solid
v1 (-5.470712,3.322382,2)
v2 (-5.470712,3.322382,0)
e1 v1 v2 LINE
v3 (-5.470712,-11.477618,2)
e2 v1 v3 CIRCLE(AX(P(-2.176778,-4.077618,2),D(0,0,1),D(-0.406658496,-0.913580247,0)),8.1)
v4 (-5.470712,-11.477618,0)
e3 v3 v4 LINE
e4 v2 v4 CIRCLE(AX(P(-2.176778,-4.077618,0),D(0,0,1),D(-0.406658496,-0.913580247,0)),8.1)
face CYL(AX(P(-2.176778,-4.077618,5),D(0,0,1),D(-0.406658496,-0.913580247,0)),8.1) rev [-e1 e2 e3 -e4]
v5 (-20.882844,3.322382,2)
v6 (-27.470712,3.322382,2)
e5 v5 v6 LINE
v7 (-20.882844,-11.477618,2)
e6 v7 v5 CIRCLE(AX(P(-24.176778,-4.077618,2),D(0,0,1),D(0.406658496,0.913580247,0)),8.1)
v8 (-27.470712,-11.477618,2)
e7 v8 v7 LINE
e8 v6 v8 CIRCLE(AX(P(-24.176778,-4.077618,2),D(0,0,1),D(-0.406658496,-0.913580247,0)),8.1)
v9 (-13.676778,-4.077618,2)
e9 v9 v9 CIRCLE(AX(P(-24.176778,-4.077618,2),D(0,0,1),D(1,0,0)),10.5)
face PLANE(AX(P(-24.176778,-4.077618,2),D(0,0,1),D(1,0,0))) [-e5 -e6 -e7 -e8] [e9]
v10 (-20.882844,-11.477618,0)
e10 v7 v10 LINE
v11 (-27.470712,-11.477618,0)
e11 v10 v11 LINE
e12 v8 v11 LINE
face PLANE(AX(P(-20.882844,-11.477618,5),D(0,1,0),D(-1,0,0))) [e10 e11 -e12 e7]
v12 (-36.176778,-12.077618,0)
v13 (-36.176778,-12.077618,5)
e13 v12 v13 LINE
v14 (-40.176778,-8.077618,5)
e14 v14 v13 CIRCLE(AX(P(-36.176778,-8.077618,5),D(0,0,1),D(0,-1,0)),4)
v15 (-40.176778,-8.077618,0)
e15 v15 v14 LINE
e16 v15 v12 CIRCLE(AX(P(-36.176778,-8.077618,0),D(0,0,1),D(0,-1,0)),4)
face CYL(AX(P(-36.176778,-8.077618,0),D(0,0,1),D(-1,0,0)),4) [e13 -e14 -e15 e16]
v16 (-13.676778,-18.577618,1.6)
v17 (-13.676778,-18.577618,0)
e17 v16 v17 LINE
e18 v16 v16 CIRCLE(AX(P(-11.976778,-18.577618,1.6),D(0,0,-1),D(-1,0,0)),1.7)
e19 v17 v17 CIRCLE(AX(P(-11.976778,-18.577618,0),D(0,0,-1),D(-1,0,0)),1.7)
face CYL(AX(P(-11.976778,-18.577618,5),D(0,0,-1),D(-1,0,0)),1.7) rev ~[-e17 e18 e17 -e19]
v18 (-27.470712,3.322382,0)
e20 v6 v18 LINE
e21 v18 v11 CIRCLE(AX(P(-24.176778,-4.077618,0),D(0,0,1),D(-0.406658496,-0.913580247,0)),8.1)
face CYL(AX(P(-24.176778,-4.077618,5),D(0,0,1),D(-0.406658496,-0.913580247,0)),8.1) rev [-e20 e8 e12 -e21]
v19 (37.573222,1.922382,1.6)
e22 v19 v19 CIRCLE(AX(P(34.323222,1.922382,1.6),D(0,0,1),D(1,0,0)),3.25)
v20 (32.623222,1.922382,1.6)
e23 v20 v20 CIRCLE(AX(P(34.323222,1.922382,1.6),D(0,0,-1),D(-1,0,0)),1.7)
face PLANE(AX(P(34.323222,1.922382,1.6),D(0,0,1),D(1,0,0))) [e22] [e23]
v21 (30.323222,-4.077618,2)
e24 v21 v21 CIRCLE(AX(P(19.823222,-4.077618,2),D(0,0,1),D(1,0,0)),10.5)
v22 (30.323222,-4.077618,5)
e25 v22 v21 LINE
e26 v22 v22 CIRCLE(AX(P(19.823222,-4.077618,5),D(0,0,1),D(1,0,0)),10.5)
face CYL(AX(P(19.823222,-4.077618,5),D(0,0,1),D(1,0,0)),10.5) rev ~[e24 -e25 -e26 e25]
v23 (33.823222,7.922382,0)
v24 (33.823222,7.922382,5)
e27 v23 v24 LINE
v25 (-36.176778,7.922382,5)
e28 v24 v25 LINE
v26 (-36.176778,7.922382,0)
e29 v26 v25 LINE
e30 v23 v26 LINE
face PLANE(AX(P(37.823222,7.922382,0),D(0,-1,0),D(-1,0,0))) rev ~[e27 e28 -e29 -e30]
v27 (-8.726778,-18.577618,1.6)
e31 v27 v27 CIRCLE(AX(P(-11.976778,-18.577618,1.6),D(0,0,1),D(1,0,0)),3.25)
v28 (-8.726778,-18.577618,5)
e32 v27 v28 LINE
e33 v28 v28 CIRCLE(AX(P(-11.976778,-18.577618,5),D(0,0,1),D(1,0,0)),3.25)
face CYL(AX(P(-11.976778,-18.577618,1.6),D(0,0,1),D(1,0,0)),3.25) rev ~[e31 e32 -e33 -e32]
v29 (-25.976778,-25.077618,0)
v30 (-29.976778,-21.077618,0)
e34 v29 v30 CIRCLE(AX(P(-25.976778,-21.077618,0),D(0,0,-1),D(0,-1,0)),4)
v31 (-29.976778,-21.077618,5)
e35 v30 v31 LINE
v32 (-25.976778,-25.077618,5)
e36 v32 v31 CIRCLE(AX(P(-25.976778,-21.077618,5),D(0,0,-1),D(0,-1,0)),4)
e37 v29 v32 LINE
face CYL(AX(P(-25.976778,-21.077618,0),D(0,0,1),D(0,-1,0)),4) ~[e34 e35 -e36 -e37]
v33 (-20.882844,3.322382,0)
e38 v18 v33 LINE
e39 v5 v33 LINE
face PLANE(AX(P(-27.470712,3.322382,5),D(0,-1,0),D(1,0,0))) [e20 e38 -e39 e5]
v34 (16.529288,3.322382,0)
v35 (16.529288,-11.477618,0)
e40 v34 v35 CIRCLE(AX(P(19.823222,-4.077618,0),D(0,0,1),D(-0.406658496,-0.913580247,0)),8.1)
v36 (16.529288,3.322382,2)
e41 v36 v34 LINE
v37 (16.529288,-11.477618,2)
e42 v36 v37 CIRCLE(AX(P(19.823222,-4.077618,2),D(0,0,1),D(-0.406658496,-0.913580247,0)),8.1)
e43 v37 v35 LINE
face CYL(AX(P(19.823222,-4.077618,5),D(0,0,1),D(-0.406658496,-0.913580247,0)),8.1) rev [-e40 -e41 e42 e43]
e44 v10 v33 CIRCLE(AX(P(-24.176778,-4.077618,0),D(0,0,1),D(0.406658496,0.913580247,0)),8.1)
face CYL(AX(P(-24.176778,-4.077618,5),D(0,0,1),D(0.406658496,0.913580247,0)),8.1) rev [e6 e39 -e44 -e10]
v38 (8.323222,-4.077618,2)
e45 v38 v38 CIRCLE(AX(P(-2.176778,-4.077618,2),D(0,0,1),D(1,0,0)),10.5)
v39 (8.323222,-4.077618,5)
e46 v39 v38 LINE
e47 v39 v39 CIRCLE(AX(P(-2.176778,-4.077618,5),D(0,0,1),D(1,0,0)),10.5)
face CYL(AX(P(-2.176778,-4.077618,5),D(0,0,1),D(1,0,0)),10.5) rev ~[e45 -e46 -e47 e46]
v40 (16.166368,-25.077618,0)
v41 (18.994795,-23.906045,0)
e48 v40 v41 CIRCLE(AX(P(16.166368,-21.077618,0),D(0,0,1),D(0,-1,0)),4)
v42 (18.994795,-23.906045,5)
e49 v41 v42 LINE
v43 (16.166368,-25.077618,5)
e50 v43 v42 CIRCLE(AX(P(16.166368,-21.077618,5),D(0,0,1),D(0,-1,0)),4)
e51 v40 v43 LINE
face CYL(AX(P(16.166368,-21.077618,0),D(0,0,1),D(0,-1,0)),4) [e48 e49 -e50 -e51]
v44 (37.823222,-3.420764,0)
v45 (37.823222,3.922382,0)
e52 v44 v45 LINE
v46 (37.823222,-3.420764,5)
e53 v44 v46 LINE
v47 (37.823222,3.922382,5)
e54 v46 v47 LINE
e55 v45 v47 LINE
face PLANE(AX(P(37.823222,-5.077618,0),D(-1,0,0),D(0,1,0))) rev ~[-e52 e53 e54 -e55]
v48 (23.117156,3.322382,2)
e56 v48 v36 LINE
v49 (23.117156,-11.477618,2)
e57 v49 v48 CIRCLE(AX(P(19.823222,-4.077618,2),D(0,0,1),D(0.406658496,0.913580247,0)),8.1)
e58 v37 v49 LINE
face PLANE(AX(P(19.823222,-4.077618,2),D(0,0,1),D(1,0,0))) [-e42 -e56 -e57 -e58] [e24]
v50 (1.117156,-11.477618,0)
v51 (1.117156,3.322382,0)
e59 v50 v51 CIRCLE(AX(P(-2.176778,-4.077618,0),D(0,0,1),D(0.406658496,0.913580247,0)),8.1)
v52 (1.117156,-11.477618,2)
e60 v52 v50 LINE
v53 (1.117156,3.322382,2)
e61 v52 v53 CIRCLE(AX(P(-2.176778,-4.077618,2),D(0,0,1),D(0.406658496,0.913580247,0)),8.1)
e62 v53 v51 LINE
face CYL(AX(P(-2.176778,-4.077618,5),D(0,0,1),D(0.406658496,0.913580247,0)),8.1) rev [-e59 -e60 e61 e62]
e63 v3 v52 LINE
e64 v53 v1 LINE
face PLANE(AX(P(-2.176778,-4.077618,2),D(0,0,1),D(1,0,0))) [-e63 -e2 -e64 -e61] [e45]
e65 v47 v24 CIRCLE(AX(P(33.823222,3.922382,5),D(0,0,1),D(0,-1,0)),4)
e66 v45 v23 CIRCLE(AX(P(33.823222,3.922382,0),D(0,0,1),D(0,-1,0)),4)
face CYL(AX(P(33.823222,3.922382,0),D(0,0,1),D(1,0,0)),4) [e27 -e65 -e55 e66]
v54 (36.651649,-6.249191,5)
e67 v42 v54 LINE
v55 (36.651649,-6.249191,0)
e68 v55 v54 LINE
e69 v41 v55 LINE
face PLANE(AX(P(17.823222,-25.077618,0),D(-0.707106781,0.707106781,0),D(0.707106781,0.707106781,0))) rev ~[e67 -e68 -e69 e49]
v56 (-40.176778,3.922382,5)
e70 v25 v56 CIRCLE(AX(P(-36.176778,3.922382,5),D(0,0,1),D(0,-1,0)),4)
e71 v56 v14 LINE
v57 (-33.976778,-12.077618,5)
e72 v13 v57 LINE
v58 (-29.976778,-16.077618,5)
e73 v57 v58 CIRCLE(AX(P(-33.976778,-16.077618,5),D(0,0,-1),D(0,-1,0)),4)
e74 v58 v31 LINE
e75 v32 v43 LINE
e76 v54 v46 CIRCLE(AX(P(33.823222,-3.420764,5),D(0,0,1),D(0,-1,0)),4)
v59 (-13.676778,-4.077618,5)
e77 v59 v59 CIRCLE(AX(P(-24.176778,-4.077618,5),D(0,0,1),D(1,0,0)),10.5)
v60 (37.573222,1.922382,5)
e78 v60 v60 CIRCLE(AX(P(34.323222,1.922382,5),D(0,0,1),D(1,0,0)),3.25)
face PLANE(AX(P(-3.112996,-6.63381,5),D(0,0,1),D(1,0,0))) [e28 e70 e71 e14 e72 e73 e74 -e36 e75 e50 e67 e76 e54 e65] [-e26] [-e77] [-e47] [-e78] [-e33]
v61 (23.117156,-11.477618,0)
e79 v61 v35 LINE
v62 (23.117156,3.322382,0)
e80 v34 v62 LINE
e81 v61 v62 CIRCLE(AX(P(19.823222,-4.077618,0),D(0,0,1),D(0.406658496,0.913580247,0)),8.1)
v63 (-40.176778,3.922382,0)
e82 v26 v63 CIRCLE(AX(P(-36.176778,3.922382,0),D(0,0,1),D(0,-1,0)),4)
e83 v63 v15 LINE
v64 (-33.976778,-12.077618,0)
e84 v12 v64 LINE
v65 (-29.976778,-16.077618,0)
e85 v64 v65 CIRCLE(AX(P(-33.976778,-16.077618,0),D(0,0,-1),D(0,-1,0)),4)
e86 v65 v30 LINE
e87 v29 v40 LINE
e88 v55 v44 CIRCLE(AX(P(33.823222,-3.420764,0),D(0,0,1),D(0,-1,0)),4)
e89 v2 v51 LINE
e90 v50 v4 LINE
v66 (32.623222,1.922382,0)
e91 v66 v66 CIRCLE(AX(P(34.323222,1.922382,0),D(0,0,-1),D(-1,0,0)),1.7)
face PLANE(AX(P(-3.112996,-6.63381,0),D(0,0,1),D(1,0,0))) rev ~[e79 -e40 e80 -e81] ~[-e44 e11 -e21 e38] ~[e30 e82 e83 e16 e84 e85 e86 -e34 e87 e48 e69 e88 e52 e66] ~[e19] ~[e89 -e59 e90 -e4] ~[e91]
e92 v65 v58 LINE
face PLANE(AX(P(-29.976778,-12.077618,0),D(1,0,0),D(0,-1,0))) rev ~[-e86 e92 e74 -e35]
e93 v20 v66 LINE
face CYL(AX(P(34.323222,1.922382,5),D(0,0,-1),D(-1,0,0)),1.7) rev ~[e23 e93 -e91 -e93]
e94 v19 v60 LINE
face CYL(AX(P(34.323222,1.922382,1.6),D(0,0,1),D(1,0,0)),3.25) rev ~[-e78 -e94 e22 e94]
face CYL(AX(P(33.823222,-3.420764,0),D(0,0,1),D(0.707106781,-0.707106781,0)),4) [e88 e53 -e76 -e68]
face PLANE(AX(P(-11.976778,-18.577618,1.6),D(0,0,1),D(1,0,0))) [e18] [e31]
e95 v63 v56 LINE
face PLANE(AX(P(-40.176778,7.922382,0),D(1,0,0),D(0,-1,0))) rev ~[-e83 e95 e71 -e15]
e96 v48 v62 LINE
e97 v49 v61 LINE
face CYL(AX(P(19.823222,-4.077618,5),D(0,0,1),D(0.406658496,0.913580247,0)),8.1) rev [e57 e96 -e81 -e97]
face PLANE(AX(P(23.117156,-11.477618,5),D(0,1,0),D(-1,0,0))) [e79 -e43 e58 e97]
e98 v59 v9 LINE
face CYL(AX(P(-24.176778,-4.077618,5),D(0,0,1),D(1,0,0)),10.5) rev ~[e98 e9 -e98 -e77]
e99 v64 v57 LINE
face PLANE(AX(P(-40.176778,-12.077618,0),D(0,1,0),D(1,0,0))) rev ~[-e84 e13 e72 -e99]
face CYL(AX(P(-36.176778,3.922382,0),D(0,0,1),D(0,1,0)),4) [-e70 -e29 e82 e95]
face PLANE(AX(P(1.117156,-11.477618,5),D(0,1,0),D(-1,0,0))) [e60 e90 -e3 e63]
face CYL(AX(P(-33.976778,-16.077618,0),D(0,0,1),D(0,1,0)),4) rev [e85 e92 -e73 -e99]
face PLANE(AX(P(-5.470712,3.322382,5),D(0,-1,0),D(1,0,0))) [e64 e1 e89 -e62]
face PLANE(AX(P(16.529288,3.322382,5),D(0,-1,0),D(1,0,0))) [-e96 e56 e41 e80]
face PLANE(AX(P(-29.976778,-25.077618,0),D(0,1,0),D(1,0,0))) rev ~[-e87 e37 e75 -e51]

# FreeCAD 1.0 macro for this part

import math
import FreeCAD as App
import Part
import Sketcher

V = App.Vector
Q = App.Units.Quantity


def edges_at(feature, points):
    """Names of the edges that pass closest to the given points."""
    edges = feature.Shape.Edges
    near = lambda p: min(range(len(edges)), key=lambda i: edges[i].distToShape(Part.Vertex(*p))[0])
    return sorted({f"Edge{near(p) + 1}" for p in points})

doc = App.newDocument("Part")
params = doc.addObject("Spreadsheet::Sheet", "Params")
for row, (alias, value) in enumerate([
    ("sketch1_width", "78 mm"),
    ("sketch1_height", "13 mm"),
    ("sketch1_height2", "20 mm"),
    ("sketch1_width2", "47.8 mm"),
    ("pad1_length", "5 mm"),
    ("fillet_radius", "4 mm"),
    ("sketch2_radius", "8.1 mm"),
    ("pocket1_length", "10 mm"),
    ("sketch3_diameter", "21 mm"),
    ("pocket2_length", "3 mm"),
    ("sketch4_diameter", "3.4 mm"),
    ("hole_diameter", "3.4 mm"),
    ("hole_cbore_diameter", "6.5 mm"),
    ("hole_cbore_depth", "3.4 mm"),
], start=1):
    params.set(f"A{row}", alias)
    params.set(f"B{row}", "=" + value)
    params.setAlias(f"B{row}", alias)

body = doc.addObject("PartDesign::Body", "Body")

sketch1 = doc.addObject("Sketcher::SketchObject", "Sketch")
body.addObject(sketch1)
sketch1.AttachmentSupport = (doc.XY_Plane, [""])
sketch1.MapMode = "FlatFace"
sketch1.addGeometry(Part.LineSegment(V(-29.976778, -25.077618, 0), V(17.823222, -25.077618, 0)), False)
sketch1.addGeometry(Part.LineSegment(V(17.823222, -25.077618, 0), V(37.823222, -5.077618, 0)), False)
sketch1.addGeometry(Part.LineSegment(V(37.823222, -5.077618, 0), V(37.823222, 7.922382, 0)), False)
sketch1.addGeometry(Part.LineSegment(V(37.823222, 7.922382, 0), V(-40.176778, 7.922382, 0)), False)
sketch1.addGeometry(Part.LineSegment(V(-40.176778, 7.922382, 0), V(-40.176778, -12.077618, 0)), False)
sketch1.addGeometry(Part.LineSegment(V(-40.176778, -12.077618, 0), V(-29.976778, -12.077618, 0)), False)
sketch1.addGeometry(Part.LineSegment(V(-29.976778, -12.077618, 0), V(-29.976778, -25.077618, 0)), False)
sketch1.addConstraint(Sketcher.Constraint("Coincident", 0, 2, 1, 1))
sketch1.addConstraint(Sketcher.Constraint("Coincident", 1, 2, 2, 1))
sketch1.addConstraint(Sketcher.Constraint("Coincident", 2, 2, 3, 1))
sketch1.addConstraint(Sketcher.Constraint("Coincident", 3, 2, 4, 1))
sketch1.addConstraint(Sketcher.Constraint("Coincident", 4, 2, 5, 1))
sketch1.addConstraint(Sketcher.Constraint("Coincident", 5, 2, 6, 1))
sketch1.addConstraint(Sketcher.Constraint("Coincident", 6, 2, 0, 1))
sketch1.addConstraint(Sketcher.Constraint("Horizontal", 0))
sketch1.addConstraint(Sketcher.Constraint("Vertical", 2))
sketch1.addConstraint(Sketcher.Constraint("Horizontal", 3))
sketch1.addConstraint(Sketcher.Constraint("Vertical", 4))
sketch1.addConstraint(Sketcher.Constraint("Horizontal", 5))
sketch1.addConstraint(Sketcher.Constraint("Vertical", 6))
sketch1.addConstraint(Sketcher.Constraint("Equal", 2, 6))
sketch1.addConstraint(Sketcher.Constraint("DistanceX", 3, 2, 3, 1, 78.0))
sketch1.addConstraint(Sketcher.Constraint("DistanceY", 2, 1, 2, 2, 13.0))
sketch1.addConstraint(Sketcher.Constraint("DistanceY", 4, 2, 4, 1, 20.0))
sketch1.addConstraint(Sketcher.Constraint("Angle", 1, Q("45 deg")))
sketch1.addConstraint(Sketcher.Constraint("DistanceX", 0, 1, 0, 2, 47.8))
sketch1.addConstraint(Sketcher.Constraint("DistanceX", -1, 1, 0, 2, 17.823222))
sketch1.addConstraint(Sketcher.Constraint("DistanceY", 0, 2, -1, 1, 25.077618))
sketch1.setExpression("Constraints[14]", "Params.sketch1_width")
sketch1.setExpression("Constraints[15]", "Params.sketch1_height")
sketch1.setExpression("Constraints[16]", "Params.sketch1_height2")
sketch1.setExpression("Constraints[18]", "Params.sketch1_width2")
pad1 = doc.addObject("PartDesign::Pad", "Pad")
body.addObject(pad1)
pad1.Profile = sketch1
pad1.setExpression("Length", "Params.pad1_length")
doc.recompute()

fillet = doc.addObject("PartDesign::Fillet", "Fillet")
body.addObject(fillet)
fillet.Base = (pad1, edges_at(pad1, [
    (-29.977, -12.078, 2.5),
    (-40.177, -12.078, 2.5),
    (-40.177, 7.922, 2.5),
    (37.823, 7.922, 2.5),
    (37.823, -5.078, 2.5),
    (17.823, -25.078, 2.5),
    (-29.977, -25.078, 2.5),
]))
fillet.setExpression("Radius", "Params.fillet_radius")

sketch2 = doc.addObject("Sketcher::SketchObject", "Sketch001")
body.addObject(sketch2)
sketch2.AttachmentSupport = (doc.XY_Plane, [""])
sketch2.MapMode = "FlatFace"
sketch2.AttachmentOffset = App.Placement(V(0, 0, 5), App.Rotation())
sketch2.addGeometry(Part.LineSegment(V(1.117156, 3.322382, 0), V(-5.470712, 3.322382, 0)), False)
sketch2.addGeometry(Part.ArcOfCircle(Part.Circle(V(-2.176778, -4.077618, 0), V(0, 0, 1), 8.1), math.radians(113.995099), math.radians(246.004901)), False)
sketch2.addGeometry(Part.LineSegment(V(-5.470712, -11.477618, 0), V(1.117156, -11.477618, 0)), False)
sketch2.addGeometry(Part.ArcOfCircle(Part.Circle(V(-2.176778, -4.077618, 0), V(0, 0, 1), 8.1), math.radians(-66.004901), math.radians(66.004901)), False)
sketch2.addGeometry(Part.LineSegment(V(23.117156, 3.322382, 0), V(16.529288, 3.322382, 0)), False)
sketch2.addGeometry(Part.ArcOfCircle(Part.Circle(V(19.823222, -4.077618, 0), V(0, 0, 1), 8.1), math.radians(113.995099), math.radians(246.004901)), False)
sketch2.addGeometry(Part.LineSegment(V(16.529288, -11.477618, 0), V(23.117156, -11.477618, 0)), False)
sketch2.addGeometry(Part.ArcOfCircle(Part.Circle(V(19.823222, -4.077618, 0), V(0, 0, 1), 8.1), math.radians(-66.004901), math.radians(66.004901)), False)
sketch2.addGeometry(Part.LineSegment(V(-20.882844, 3.322382, 0), V(-27.470712, 3.322382, 0)), False)
sketch2.addGeometry(Part.ArcOfCircle(Part.Circle(V(-24.176778, -4.077618, 0), V(0, 0, 1), 8.1), math.radians(113.995099), math.radians(246.004901)), False)
sketch2.addGeometry(Part.LineSegment(V(-27.470712, -11.477618, 0), V(-20.882844, -11.477618, 0)), False)
sketch2.addGeometry(Part.ArcOfCircle(Part.Circle(V(-24.176778, -4.077618, 0), V(0, 0, 1), 8.1), math.radians(-66.004901), math.radians(66.004901)), False)
sketch2.addConstraint(Sketcher.Constraint("Coincident", 0, 2, 1, 1))
sketch2.addConstraint(Sketcher.Constraint("Coincident", 1, 2, 2, 1))
sketch2.addConstraint(Sketcher.Constraint("Coincident", 2, 2, 3, 1))
sketch2.addConstraint(Sketcher.Constraint("Coincident", 3, 2, 0, 1))
sketch2.addConstraint(Sketcher.Constraint("Coincident", 4, 2, 5, 1))
sketch2.addConstraint(Sketcher.Constraint("Coincident", 5, 2, 6, 1))
sketch2.addConstraint(Sketcher.Constraint("Coincident", 6, 2, 7, 1))
sketch2.addConstraint(Sketcher.Constraint("Coincident", 7, 2, 4, 1))
sketch2.addConstraint(Sketcher.Constraint("Coincident", 8, 2, 9, 1))
sketch2.addConstraint(Sketcher.Constraint("Coincident", 9, 2, 10, 1))
sketch2.addConstraint(Sketcher.Constraint("Coincident", 10, 2, 11, 1))
sketch2.addConstraint(Sketcher.Constraint("Coincident", 11, 2, 8, 1))
sketch2.addConstraint(Sketcher.Constraint("Horizontal", 0))
sketch2.addConstraint(Sketcher.Constraint("Horizontal", 2))
sketch2.addConstraint(Sketcher.Constraint("Horizontal", 4))
sketch2.addConstraint(Sketcher.Constraint("Horizontal", 6))
sketch2.addConstraint(Sketcher.Constraint("Horizontal", 8))
sketch2.addConstraint(Sketcher.Constraint("Horizontal", 10))
sketch2.addConstraint(Sketcher.Constraint("Coincident", 3, 3, 1, 3))
sketch2.addConstraint(Sketcher.Constraint("Coincident", 7, 3, 5, 3))
sketch2.addConstraint(Sketcher.Constraint("Coincident", 11, 3, 9, 3))
sketch2.addConstraint(Sketcher.Constraint("Equal", 1, 3))
sketch2.addConstraint(Sketcher.Constraint("Equal", 3, 5))
sketch2.addConstraint(Sketcher.Constraint("Equal", 5, 7))
sketch2.addConstraint(Sketcher.Constraint("Equal", 7, 9))
sketch2.addConstraint(Sketcher.Constraint("Equal", 9, 11))
sketch2.addConstraint(Sketcher.Constraint("Horizontal", 3, 3, 5, 3))
sketch2.addConstraint(Sketcher.Constraint("Horizontal", 7, 3, 9, 3))
sketch2.addConstraint(Sketcher.Constraint("Horizontal", 3, 2, 4, 2))
sketch2.addConstraint(Sketcher.Constraint("Horizontal", 2, 2, 5, 2))
sketch2.addConstraint(Sketcher.Constraint("Horizontal", 7, 2, 8, 2))
sketch2.addConstraint(Sketcher.Constraint("Horizontal", 6, 2, 9, 2))
sketch2.addConstraint(Sketcher.Constraint("Vertical", 0, 2, 1, 2))
sketch2.addConstraint(Sketcher.Constraint("Radius", 1, 8.1))
sketch2.addConstraint(Sketcher.Constraint("DistanceX", 1, 3, 5, 3, 22.0))
sketch2.addConstraint(Sketcher.Constraint("DistanceX", 9, 3, 1, 3, 22.0))
sketch2.addConstraint(Sketcher.Constraint("DistanceY", 1, 3, 0, 2, 7.4))
sketch2.addConstraint(Sketcher.Constraint("DistanceX", 0, 2, -1, 1, 5.470712))
sketch2.addConstraint(Sketcher.Constraint("DistanceY", 1, 3, -1, 1, 4.077618))
sketch2.setExpression("Constraints[33]", "Params.sketch2_radius")
pocket1 = doc.addObject("PartDesign::Pocket", "Pocket")
body.addObject(pocket1)
pocket1.Profile = sketch2
pocket1.setExpression("Length", "Params.pocket1_length")

sketch3 = doc.addObject("Sketcher::SketchObject", "Sketch002")
body.addObject(sketch3)
sketch3.AttachmentSupport = (doc.XY_Plane, [""])
sketch3.MapMode = "FlatFace"
sketch3.AttachmentOffset = App.Placement(V(0, 0, 5), App.Rotation())
sketch3.addGeometry(Part.Circle(V(19.823222, -4.077618, 0), V(0, 0, 1), 10.5), False)
sketch3.addGeometry(Part.Circle(V(-2.176778, -4.077618, 0), V(0, 0, 1), 10.5), False)
sketch3.addGeometry(Part.Circle(V(-24.176778, -4.077618, 0), V(0, 0, 1), 10.5), False)
sketch3.addConstraint(Sketcher.Constraint("Equal", 0, 1))
sketch3.addConstraint(Sketcher.Constraint("Equal", 1, 2))
sketch3.addConstraint(Sketcher.Constraint("Horizontal", 0, 3, 1, 3))
sketch3.addConstraint(Sketcher.Constraint("Horizontal", 1, 3, 2, 3))
sketch3.addConstraint(Sketcher.Constraint("Diameter", 0, 21.0))
sketch3.addConstraint(Sketcher.Constraint("DistanceX", 1, 3, 0, 3, 22.0))
sketch3.addConstraint(Sketcher.Constraint("DistanceX", 2, 3, 1, 3, 22.0))
sketch3.addConstraint(Sketcher.Constraint("DistanceX", -1, 1, 0, 3, 19.823222))
sketch3.addConstraint(Sketcher.Constraint("DistanceY", 0, 3, -1, 1, 4.077618))
sketch3.setExpression("Constraints[4]", "Params.sketch3_diameter")
pocket2 = doc.addObject("PartDesign::Pocket", "Pocket001")
body.addObject(pocket2)
pocket2.Profile = sketch3
pocket2.setExpression("Length", "Params.pocket2_length")

sketch4 = doc.addObject("Sketcher::SketchObject", "Sketch003")
body.addObject(sketch4)
sketch4.AttachmentSupport = (doc.XY_Plane, [""])
sketch4.MapMode = "FlatFace"
sketch4.AttachmentOffset = App.Placement(V(0, 0, 5), App.Rotation())
sketch4.addGeometry(Part.Circle(V(34.323222, 1.922382, 0), V(0, 0, 1), 1.7), False)
sketch4.addGeometry(Part.Circle(V(-11.976778, -18.577618, 0), V(0, 0, 1), 1.7), False)
sketch4.addConstraint(Sketcher.Constraint("Equal", 0, 1))
sketch4.addConstraint(Sketcher.Constraint("Diameter", 0, 3.4))
sketch4.addConstraint(Sketcher.Constraint("DistanceX", 1, 3, 0, 3, 46.3))
sketch4.addConstraint(Sketcher.Constraint("DistanceY", 1, 3, 0, 3, 20.5))
sketch4.addConstraint(Sketcher.Constraint("DistanceX", -1, 1, 0, 3, 34.323222))
sketch4.addConstraint(Sketcher.Constraint("DistanceY", -1, 1, 0, 3, 1.922382))
sketch4.setExpression("Constraints[1]", "Params.sketch4_diameter")
doc.recompute()
hole = doc.addObject("PartDesign::Hole", "Hole")
body.addObject(hole)
hole.Profile = sketch4
hole.ThreadType = "None"
hole.setExpression("Diameter", "Params.hole_diameter")
hole.DepthType = "ThroughAll"
hole.HoleCutType = "Counterbore"
hole.setExpression("HoleCutDiameter", "Params.hole_cbore_diameter")
hole.setExpression("HoleCutDepth", "Params.hole_cbore_depth")

doc.recompute()
